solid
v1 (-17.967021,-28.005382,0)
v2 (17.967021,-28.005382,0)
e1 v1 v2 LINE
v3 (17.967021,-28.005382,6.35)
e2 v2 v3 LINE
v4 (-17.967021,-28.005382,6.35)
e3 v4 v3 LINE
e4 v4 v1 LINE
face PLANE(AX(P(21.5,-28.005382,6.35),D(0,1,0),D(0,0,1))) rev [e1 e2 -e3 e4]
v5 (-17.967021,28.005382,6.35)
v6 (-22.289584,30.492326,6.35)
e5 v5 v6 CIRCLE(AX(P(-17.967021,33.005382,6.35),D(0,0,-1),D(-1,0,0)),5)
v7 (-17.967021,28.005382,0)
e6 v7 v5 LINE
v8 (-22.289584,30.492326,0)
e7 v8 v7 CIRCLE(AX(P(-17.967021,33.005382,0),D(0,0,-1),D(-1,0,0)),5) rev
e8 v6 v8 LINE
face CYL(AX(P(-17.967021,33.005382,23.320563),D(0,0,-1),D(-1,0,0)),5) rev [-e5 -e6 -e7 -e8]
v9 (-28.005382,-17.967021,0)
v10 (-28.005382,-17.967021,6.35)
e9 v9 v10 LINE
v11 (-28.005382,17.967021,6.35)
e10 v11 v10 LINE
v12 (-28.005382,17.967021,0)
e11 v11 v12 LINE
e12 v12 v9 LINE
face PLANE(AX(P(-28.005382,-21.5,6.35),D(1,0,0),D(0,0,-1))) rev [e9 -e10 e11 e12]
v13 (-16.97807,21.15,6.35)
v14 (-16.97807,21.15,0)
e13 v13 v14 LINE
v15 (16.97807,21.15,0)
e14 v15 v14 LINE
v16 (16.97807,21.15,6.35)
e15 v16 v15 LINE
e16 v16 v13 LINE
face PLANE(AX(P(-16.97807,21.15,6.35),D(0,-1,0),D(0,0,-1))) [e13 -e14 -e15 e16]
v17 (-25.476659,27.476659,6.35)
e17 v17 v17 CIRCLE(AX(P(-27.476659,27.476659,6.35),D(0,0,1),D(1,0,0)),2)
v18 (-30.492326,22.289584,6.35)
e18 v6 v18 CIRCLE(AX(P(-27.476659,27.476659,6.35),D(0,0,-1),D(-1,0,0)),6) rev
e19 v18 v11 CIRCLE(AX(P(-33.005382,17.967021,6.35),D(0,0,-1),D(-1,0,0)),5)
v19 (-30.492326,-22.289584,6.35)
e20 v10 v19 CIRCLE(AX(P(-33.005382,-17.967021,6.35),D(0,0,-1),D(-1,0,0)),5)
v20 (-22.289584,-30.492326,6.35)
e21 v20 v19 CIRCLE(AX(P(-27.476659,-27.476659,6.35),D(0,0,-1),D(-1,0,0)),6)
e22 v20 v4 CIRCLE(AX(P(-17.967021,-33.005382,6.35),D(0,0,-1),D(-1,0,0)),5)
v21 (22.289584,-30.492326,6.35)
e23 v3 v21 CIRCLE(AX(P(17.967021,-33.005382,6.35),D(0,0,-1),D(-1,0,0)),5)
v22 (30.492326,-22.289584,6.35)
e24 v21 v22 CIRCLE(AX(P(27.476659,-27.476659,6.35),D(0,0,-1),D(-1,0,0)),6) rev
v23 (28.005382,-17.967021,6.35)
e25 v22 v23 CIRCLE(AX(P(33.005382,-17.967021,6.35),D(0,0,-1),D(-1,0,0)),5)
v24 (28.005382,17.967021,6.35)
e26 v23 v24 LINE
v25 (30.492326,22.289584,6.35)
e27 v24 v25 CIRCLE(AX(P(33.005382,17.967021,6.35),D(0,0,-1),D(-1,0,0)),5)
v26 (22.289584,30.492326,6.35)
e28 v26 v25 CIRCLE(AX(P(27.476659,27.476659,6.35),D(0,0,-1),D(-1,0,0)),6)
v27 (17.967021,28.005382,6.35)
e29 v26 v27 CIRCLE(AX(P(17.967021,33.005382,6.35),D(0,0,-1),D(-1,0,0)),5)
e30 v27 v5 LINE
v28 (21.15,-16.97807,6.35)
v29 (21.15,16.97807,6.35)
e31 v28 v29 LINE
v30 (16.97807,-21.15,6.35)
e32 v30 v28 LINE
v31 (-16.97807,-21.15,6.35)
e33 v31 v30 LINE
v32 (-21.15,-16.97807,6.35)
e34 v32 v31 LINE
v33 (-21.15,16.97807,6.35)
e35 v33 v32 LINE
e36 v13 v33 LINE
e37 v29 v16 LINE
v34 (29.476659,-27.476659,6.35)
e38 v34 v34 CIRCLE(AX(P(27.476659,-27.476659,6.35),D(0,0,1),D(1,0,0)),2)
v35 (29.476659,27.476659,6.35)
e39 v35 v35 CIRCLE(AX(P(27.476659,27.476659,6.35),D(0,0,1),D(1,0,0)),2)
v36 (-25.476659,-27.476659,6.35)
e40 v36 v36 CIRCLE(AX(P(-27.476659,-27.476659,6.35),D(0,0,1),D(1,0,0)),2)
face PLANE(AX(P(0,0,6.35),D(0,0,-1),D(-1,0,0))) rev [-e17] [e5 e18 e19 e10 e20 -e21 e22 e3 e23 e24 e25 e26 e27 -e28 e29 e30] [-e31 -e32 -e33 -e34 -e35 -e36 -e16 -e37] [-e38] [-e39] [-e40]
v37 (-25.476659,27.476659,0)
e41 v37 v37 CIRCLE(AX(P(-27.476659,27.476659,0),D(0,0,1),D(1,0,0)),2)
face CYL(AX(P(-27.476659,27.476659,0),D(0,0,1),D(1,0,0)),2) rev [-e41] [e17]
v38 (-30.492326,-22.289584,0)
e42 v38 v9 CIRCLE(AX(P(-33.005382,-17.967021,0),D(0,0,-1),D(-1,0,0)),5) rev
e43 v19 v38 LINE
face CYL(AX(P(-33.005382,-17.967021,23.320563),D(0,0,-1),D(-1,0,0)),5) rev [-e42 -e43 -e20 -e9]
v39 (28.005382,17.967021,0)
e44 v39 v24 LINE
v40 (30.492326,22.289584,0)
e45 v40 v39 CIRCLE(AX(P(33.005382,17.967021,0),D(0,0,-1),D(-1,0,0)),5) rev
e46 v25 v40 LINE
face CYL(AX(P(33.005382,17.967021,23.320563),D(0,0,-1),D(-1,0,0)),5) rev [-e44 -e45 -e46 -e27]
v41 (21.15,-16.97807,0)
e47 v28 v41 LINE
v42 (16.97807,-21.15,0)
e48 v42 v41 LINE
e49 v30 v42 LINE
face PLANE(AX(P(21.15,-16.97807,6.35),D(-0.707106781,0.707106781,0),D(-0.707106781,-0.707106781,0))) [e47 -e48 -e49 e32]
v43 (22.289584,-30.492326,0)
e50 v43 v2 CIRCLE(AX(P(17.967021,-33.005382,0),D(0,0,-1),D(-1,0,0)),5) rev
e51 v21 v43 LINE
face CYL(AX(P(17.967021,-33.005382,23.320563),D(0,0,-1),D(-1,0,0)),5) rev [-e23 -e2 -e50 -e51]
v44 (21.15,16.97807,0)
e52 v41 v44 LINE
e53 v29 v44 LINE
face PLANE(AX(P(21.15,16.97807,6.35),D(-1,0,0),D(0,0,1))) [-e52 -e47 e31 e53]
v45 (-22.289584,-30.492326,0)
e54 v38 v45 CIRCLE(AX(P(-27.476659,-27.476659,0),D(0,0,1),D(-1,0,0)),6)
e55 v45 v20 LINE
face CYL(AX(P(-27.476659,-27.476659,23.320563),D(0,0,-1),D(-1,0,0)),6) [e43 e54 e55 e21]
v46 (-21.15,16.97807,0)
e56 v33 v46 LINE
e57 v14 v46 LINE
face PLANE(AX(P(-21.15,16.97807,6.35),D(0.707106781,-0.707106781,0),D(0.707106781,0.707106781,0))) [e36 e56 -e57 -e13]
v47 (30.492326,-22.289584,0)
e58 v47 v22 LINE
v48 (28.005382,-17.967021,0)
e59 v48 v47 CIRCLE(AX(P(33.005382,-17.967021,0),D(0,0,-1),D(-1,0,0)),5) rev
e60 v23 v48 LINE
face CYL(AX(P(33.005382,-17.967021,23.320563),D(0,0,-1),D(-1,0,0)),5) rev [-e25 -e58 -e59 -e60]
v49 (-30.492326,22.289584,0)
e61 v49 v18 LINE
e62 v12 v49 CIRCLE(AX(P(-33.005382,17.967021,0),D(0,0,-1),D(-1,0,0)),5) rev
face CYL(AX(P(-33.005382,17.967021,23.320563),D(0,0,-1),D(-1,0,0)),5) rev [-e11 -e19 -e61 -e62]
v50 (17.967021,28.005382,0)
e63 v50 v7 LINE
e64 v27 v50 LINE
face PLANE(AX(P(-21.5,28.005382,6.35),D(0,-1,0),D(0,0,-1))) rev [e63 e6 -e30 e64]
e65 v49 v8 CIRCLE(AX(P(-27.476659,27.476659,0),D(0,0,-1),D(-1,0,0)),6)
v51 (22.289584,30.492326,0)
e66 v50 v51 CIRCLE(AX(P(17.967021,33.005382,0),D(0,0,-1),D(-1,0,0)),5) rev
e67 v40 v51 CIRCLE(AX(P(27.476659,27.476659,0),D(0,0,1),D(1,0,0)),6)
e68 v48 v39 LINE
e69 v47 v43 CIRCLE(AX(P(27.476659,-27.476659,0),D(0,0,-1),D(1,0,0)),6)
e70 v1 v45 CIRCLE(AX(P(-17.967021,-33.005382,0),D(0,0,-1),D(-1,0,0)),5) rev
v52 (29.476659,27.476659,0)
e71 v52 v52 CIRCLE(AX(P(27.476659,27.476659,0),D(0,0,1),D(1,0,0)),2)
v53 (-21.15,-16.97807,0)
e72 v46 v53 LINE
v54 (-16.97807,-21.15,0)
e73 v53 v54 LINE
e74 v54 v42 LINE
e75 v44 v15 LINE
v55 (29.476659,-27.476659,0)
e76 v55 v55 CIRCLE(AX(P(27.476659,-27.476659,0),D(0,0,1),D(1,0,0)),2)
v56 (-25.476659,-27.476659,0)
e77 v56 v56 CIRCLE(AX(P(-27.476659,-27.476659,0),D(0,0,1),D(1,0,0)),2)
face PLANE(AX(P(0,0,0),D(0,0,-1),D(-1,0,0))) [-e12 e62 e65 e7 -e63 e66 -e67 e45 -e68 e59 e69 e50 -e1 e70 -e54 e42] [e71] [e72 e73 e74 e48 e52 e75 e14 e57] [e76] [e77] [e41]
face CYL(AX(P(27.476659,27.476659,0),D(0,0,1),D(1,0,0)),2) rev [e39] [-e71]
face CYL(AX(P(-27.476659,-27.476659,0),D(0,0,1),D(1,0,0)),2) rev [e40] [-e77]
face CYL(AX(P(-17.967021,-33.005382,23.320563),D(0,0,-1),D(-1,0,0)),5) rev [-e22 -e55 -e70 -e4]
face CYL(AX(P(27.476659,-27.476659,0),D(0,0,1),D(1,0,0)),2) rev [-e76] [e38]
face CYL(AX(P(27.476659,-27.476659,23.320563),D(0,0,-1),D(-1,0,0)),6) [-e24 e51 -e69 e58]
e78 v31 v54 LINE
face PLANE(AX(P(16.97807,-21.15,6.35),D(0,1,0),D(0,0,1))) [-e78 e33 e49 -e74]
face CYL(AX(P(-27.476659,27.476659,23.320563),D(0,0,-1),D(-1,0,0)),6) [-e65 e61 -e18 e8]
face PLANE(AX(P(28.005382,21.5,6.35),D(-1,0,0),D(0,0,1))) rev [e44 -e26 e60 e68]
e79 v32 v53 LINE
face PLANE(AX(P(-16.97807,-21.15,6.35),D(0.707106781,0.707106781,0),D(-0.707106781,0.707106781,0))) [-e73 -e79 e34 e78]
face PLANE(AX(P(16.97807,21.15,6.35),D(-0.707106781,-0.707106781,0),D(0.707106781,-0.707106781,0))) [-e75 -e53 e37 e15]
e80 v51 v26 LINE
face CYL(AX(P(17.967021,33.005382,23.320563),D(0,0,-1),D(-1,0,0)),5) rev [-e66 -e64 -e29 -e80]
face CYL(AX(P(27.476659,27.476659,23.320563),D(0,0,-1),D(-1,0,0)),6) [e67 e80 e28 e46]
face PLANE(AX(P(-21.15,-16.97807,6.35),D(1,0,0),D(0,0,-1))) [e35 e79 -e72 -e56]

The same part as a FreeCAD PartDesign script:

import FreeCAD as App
import Part
import Sketcher
from FreeCAD import Vector


def edges_at(feature, points):
    """Names of the edges that pass closest to the given points."""
    edges = feature.Shape.Edges
    near = lambda p: min(range(len(edges)), key=lambda i: edges[i].distToShape(Part.Vertex(*p))[0])
    return sorted({f"Edge{near(p) + 1}" for p in points})

doc = App.newDocument("Part")
body = doc.addObject("PartDesign::Body", "Body")

# Sketch on XY plane
sketch1 = body.newObject("Sketcher::SketchObject", "Sketch")
sketch1.AttachmentSupport = (doc.getObject("XY_Plane"), [""])
sketch1.MapMode = "FlatFace"
sketch1.addGeometry(Part.LineSegment(Vector(-28.005382, -21.5, 0), Vector(-21.5, -28.005382, 0)), False)
sketch1.addGeometry(Part.LineSegment(Vector(-21.5, -28.005382, 0), Vector(21.5, -28.005382, 0)), False)
sketch1.addGeometry(Part.LineSegment(Vector(21.5, -28.005382, 0), Vector(28.005382, -21.5, 0)), False)
sketch1.addGeometry(Part.LineSegment(Vector(28.005382, -21.5, 0), Vector(28.005382, 21.5, 0)), False)
sketch1.addGeometry(Part.LineSegment(Vector(28.005382, 21.5, 0), Vector(21.5, 28.005382, 0)), False)
sketch1.addGeometry(Part.LineSegment(Vector(21.5, 28.005382, 0), Vector(-21.5, 28.005382, 0)), False)
sketch1.addGeometry(Part.LineSegment(Vector(-21.5, 28.005382, 0), Vector(-28.005382, 21.5, 0)), False)
sketch1.addGeometry(Part.LineSegment(Vector(-28.005382, 21.5, 0), Vector(-28.005382, -21.5, 0)), False)
sketch1.addGeometry(Part.LineSegment(Vector(-16.97807, -21.15, 0), Vector(-21.15, -16.97807, 0)), False)
sketch1.addGeometry(Part.LineSegment(Vector(-21.15, -16.97807, 0), Vector(-21.15, 16.97807, 0)), False)
sketch1.addGeometry(Part.LineSegment(Vector(-21.15, 16.97807, 0), Vector(-16.97807, 21.15, 0)), False)
sketch1.addGeometry(Part.LineSegment(Vector(-16.97807, 21.15, 0), Vector(16.97807, 21.15, 0)), False)
sketch1.addGeometry(Part.LineSegment(Vector(16.97807, 21.15, 0), Vector(21.15, 16.97807, 0)), False)
sketch1.addGeometry(Part.LineSegment(Vector(21.15, 16.97807, 0), Vector(21.15, -16.97807, 0)), False)
sketch1.addGeometry(Part.LineSegment(Vector(21.15, -16.97807, 0), Vector(16.97807, -21.15, 0)), False)
sketch1.addGeometry(Part.LineSegment(Vector(16.97807, -21.15, 0), Vector(-16.97807, -21.15, 0)), False)
sketch1.addConstraint(Sketcher.Constraint("Coincident", 0, 2, 1, 1))
sketch1.addConstraint(Sketcher.Constraint("Coincident", 1, 2, 2, 1))
sketch1.addConstraint(Sketcher.Constraint("Coincident", 2, 2, 3, 1))
sketch1.addConstraint(Sketcher.Constraint("Coincident", 3, 2, 4, 1))
sketch1.addConstraint(Sketcher.Constraint("Coincident", 4, 2, 5, 1))
sketch1.addConstraint(Sketcher.Constraint("Coincident", 5, 2, 6, 1))
sketch1.addConstraint(Sketcher.Constraint("Coincident", 6, 2, 7, 1))
sketch1.addConstraint(Sketcher.Constraint("Coincident", 7, 2, 0, 1))
sketch1.addConstraint(Sketcher.Constraint("Coincident", 8, 2, 9, 1))
sketch1.addConstraint(Sketcher.Constraint("Coincident", 9, 2, 10, 1))
sketch1.addConstraint(Sketcher.Constraint("Coincident", 10, 2, 11, 1))
sketch1.addConstraint(Sketcher.Constraint("Coincident", 11, 2, 12, 1))
sketch1.addConstraint(Sketcher.Constraint("Coincident", 12, 2, 13, 1))
sketch1.addConstraint(Sketcher.Constraint("Coincident", 13, 2, 14, 1))
sketch1.addConstraint(Sketcher.Constraint("Coincident", 14, 2, 15, 1))
sketch1.addConstraint(Sketcher.Constraint("Coincident", 15, 2, 8, 1))
sketch1.addConstraint(Sketcher.Constraint("Horizontal", 1))
sketch1.addConstraint(Sketcher.Constraint("Vertical", 3))
sketch1.addConstraint(Sketcher.Constraint("Horizontal", 5))
sketch1.addConstraint(Sketcher.Constraint("Vertical", 7))
sketch1.addConstraint(Sketcher.Constraint("Vertical", 9))
sketch1.addConstraint(Sketcher.Constraint("Horizontal", 11))
sketch1.addConstraint(Sketcher.Constraint("Vertical", 13))
sketch1.addConstraint(Sketcher.Constraint("Horizontal", 15))
sketch1.addConstraint(Sketcher.Constraint("Symmetric", 0, 2, 4, 2, -1, 1))
sketch1.addConstraint(Sketcher.Constraint("Symmetric", 2, 2, 6, 2, -1, 1))
sketch1.addConstraint(Sketcher.Constraint("Symmetric", 8, 2, 12, 2, -1, 1))
sketch1.addConstraint(Sketcher.Constraint("Symmetric", 10, 2, 14, 2, -1, 1))
sketch1.addConstraint(Sketcher.Constraint("Perpendicular", 0, 2))
sketch1.addConstraint(Sketcher.Constraint("Perpendicular", 2, 4))
sketch1.addConstraint(Sketcher.Constraint("Perpendicular", 4, 6))
sketch1.addConstraint(Sketcher.Constraint("Perpendicular", 6, 8))
sketch1.addConstraint(Sketcher.Constraint("Perpendicular", 8, 10))
sketch1.addConstraint(Sketcher.Constraint("Perpendicular", 10, 12))
sketch1.addConstraint(Sketcher.Constraint("Perpendicular", 12, 14))
sketch1.addConstraint(Sketcher.Constraint("Horizontal", 3, 2, 6, 2))
sketch1.addConstraint(Sketcher.Constraint("Horizontal", 9, 2, 12, 2))
sketch1.addConstraint(Sketcher.Constraint("Vertical", 1, 2, 4, 2))
sketch1.addConstraint(Sketcher.Constraint("Equal", 5, 3))
sketch1.addConstraint(Sketcher.Constraint("Equal", 15, 9))
sketch1.addConstraint(Sketcher.Constraint("DistanceX", 1, 1, 1, 2, 43.0))
sketch1.addConstraint(Sketcher.Constraint("Distance", 0, 9.2))
sketch1.addConstraint(Sketcher.Constraint("Distance", 8, 5.9))
sketch1.addConstraint(Sketcher.Constraint("DistanceX", 8, 2, -1, 1, 21.15))
pad1 = body.newObject("PartDesign::Pad", "Pad")
pad1.Profile = sketch1
pad1.Length = 6.35

# Sketch on XY plane
sketch2 = body.newObject("Sketcher::SketchObject", "Sketch001")
sketch2.AttachmentSupport = (doc.getObject("XY_Plane"), [""])
sketch2.MapMode = "FlatFace"
sketch2.addGeometry(Part.Circle(Vector(27.476659, 27.476659, 0), Vector(0, 0, 1), 6), False)
sketch2.addConstraint(Sketcher.Constraint("Diameter", 0, 12.0))
sketch2.addConstraint(Sketcher.Constraint("DistanceX", -1, 1, 0, 3, 27.476659))
sketch2.addConstraint(Sketcher.Constraint("DistanceY", -1, 1, 0, 3, 27.476659))
pad2 = body.newObject("PartDesign::Pad", "Pad001")
pad2.Profile = sketch2
pad2.Length = 6.35
doc.recompute()

mirrored = body.newObject("PartDesign::Mirrored", "Mirrored")
mirrored.Originals = [pad2]
mirrored.MirrorPlane = (doc.getObject("YZ_Plane"), [""])
body.Tip = mirrored
doc.recompute()

mirrored2 = body.newObject("PartDesign::Mirrored", "Mirrored001")
mirrored2.Originals = [pad2]
mirrored2.MirrorPlane = (doc.getObject("XZ_Plane"), [""])
body.Tip = mirrored2

# Sketch on XY plane
sketch3 = body.newObject("Sketcher::SketchObject", "Sketch002")
sketch3.AttachmentSupport = (doc.getObject("XY_Plane"), [""])
sketch3.MapMode = "FlatFace"
sketch3.addGeometry(Part.Circle(Vector(-27.476659, -27.476659, 0), Vector(0, 0, 1), 6), False)
sketch3.addConstraint(Sketcher.Constraint("Diameter", 0, 12.0))
sketch3.addConstraint(Sketcher.Constraint("DistanceX", 0, 3, -1, 1, 27.476659))
sketch3.addConstraint(Sketcher.Constraint("DistanceY", 0, 3, -1, 1, 27.476659))
pad3 = body.newObject("PartDesign::Pad", "Pad002")
pad3.Profile = sketch3
pad3.Length = 6.35

# Sketch on XY plane
sketch4 = body.newObject("Sketcher::SketchObject", "Sketch003")
sketch4.AttachmentSupport = (doc.getObject("XY_Plane"), [""])
sketch4.MapMode = "FlatFace"
sketch4.AttachmentOffset = App.Placement(Vector(0, 0, 6.35), App.Rotation())
sketch4.addGeometry(Part.Circle(Vector(-27.476659, 27.476659, 0), Vector(0, 0, 1), 2), False)
sketch4.addGeometry(Part.Circle(Vector(27.476659, 27.476659, 0), Vector(0, 0, 1), 2), False)
sketch4.addGeometry(Part.Circle(Vector(27.476659, -27.476659, 0), Vector(0, 0, 1), 2), False)
sketch4.addGeometry(Part.Circle(Vector(-27.476659, -27.476659, 0), Vector(0, 0, 1), 2), False)
sketch4.addConstraint(Sketcher.Constraint("Equal", 0, 1))
sketch4.addConstraint(Sketcher.Constraint("Equal", 1, 2))
sketch4.addConstraint(Sketcher.Constraint("Equal", 2, 3))
sketch4.addConstraint(Sketcher.Constraint("Symmetric", 0, 3, 2, 3, -1, 1))
sketch4.addConstraint(Sketcher.Constraint("Symmetric", 1, 3, 3, 3, -1, 1))
sketch4.addConstraint(Sketcher.Constraint("Symmetric", 0, 3, 1, 3, -2))
sketch4.addConstraint(Sketcher.Constraint("Diameter", 0, 4.0))
sketch4.addConstraint(Sketcher.Constraint("DistanceX", 0, 3, -1, 1, 27.476659))
sketch4.addConstraint(Sketcher.Constraint("DistanceY", -1, 1, 0, 3, 27.476659))
pocket1 = body.newObject("PartDesign::Pocket", "Pocket")
pocket1.Profile = sketch4
pocket1.Type = "ThroughAll"
doc.recompute()

fillet = body.newObject("PartDesign::Fillet", "Fillet")
fillet.Base = (pocket1, edges_at(pocket1, [
    (-21.5, -28.005, 3.175),
    (-28.005, -21.5, 3.175),
    (-28.005, 21.5, 3.175),
    (-21.5, 28.005, 3.175),
    (21.5, 28.005, 3.175),
    (28.005, 21.5, 3.175),
    (28.005, -21.5, 3.175),
    (21.5, -28.005, 3.175),
]))
fillet.Radius = 5

doc.recompute()
